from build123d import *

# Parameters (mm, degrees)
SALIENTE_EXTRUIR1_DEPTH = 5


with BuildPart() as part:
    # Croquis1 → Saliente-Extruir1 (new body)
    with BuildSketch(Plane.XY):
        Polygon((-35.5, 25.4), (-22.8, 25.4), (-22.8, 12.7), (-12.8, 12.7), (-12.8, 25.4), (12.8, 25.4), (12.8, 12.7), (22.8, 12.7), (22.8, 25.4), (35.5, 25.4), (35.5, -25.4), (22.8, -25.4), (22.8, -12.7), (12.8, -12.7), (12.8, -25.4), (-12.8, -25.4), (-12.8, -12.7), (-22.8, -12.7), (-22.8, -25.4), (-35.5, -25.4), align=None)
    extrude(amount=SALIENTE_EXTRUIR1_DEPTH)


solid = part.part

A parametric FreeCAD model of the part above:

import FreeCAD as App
import Part
import Sketcher

V = App.Vector
Q = App.Units.Quantity


def add_polygon(sketch, points):
    """Adds a closed chain of lines whose ends are joined by coincident constraints."""
    first, n = sketch.GeometryCount, len(points)
    for a, b in zip(points, points[1:] + points[:1]):
        sketch.addGeometry(Part.LineSegment(App.Vector(*a, 0), App.Vector(*b, 0)), False)
    for i in range(n):
        sketch.addConstraint(Sketcher.Constraint("Coincident", first + i, 2, first + (i + 1) % n, 1))

doc = App.newDocument("Part")
body = doc.addObject("PartDesign::Body", "Body")

sketch1 = body.newObject("Sketcher::SketchObject", "Sketch")
sketch1.AttachmentSupport = (doc.getObject("XY_Plane"), [""])
sketch1.MapMode = "FlatFace"
add_polygon(sketch1, [(-22.8, 25.4), (-35.5, 25.4), (-35.5, -25.4), (-22.8, -25.4), (-22.8, -12.7), (-12.8, -12.7), (-12.8, -25.4), (12.8, -25.4), (12.8, -12.7), (22.8, -12.7), (22.8, -25.4), (35.5, -25.4), (35.5, 25.4), (22.8, 25.4), (22.8, 12.7), (12.8, 12.7), (12.8, 25.4), (-12.8, 25.4), (-12.8, 12.7), (-22.8, 12.7)])
sketch1.addConstraint(Sketcher.Constraint("Horizontal", 0))
sketch1.addConstraint(Sketcher.Constraint("Vertical", 1))
sketch1.addConstraint(Sketcher.Constraint("Horizontal", 2))
sketch1.addConstraint(Sketcher.Constraint("Vertical", 3))
sketch1.addConstraint(Sketcher.Constraint("Horizontal", 4))
sketch1.addConstraint(Sketcher.Constraint("Vertical", 5))
sketch1.addConstraint(Sketcher.Constraint("Horizontal", 6))
sketch1.addConstraint(Sketcher.Constraint("Vertical", 7))
sketch1.addConstraint(Sketcher.Constraint("Horizontal", 8))
sketch1.addConstraint(Sketcher.Constraint("Vertical", 9))
sketch1.addConstraint(Sketcher.Constraint("Horizontal", 10))
sketch1.addConstraint(Sketcher.Constraint("Vertical", 11))
sketch1.addConstraint(Sketcher.Constraint("Horizontal", 12))
sketch1.addConstraint(Sketcher.Constraint("Vertical", 13))
sketch1.addConstraint(Sketcher.Constraint("Horizontal", 14))
sketch1.addConstraint(Sketcher.Constraint("Vertical", 15))
sketch1.addConstraint(Sketcher.Constraint("Horizontal", 16))
sketch1.addConstraint(Sketcher.Constraint("Vertical", 17))
sketch1.addConstraint(Sketcher.Constraint("Horizontal", 18))
sketch1.addConstraint(Sketcher.Constraint("Vertical", 19))
sketch1.addConstraint(Sketcher.Constraint("Symmetric", 0, 2, 10, 2, -1, 1))
sketch1.addConstraint(Sketcher.Constraint("Symmetric", 2, 2, 12, 2, -1, 1))
sketch1.addConstraint(Sketcher.Constraint("Symmetric", 4, 2, 14, 2, -1, 1))
sketch1.addConstraint(Sketcher.Constraint("Symmetric", 6, 2, 16, 2, -1, 1))
sketch1.addConstraint(Sketcher.Constraint("Symmetric", 8, 2, 18, 2, -1, 1))
sketch1.addConstraint(Sketcher.Constraint("Symmetric", 4, 2, 7, 2, -2))
sketch1.addConstraint(Sketcher.Constraint("Symmetric", 2, 2, 9, 2, -2))
sketch1.addConstraint(Sketcher.Constraint("Horizontal", 2, 2, 5, 2))
sketch1.addConstraint(Sketcher.Constraint("Equal", 12, 3))
sketch1.addConstraint(Sketcher.Constraint("DistanceX", 4, 1, 4, 2, Q("10 mm")))
sketch1.addConstraint(Sketcher.Constraint("DistanceX", 0, 2, 0, 1, Q("12.7 mm")))
sketch1.addConstraint(Sketcher.Constraint("DistanceX", 6, 1, 6, 2, Q("25.6 mm")))
sketch1.addConstraint(Sketcher.Constraint("DistanceY", 1, 2, 1, 1, Q("50.8 mm")))
pad1 = body.newObject("PartDesign::Pad", "Pad")
pad1.Profile = sketch1
pad1.Length = 5

doc.recompute()
